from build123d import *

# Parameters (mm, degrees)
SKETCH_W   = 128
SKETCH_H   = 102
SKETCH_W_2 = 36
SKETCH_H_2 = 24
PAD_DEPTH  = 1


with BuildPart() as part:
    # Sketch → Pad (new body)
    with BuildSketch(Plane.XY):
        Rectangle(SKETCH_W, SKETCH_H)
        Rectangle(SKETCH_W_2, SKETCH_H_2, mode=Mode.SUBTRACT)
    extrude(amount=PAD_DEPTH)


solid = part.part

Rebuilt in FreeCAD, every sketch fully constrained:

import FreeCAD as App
import Part
import Sketcher

V = App.Vector
Q = App.Units.Quantity


def add_polygon(sketch, points):
    """Adds a closed chain of lines whose ends are joined by coincident constraints."""
    first, n = sketch.GeometryCount, len(points)
    for a, b in zip(points, points[1:] + points[:1]):
        sketch.addGeometry(Part.LineSegment(App.Vector(*a, 0), App.Vector(*b, 0)), False)
    for i in range(n):
        sketch.addConstraint(Sketcher.Constraint("Coincident", first + i, 2, first + (i + 1) % n, 1))

doc = App.newDocument("Part")
body = doc.addObject("PartDesign::Body", "Body")

# Sketch on XY plane
sketch1 = body.newObject("Sketcher::SketchObject", "Sketch")
sketch1.AttachmentSupport = (doc.getObject("XY_Plane"), [""])
sketch1.MapMode = "FlatFace"
add_polygon(sketch1, [(-64, 51), (-64, -51), (64, -51), (64, 51)])  # lines 0-3
add_polygon(sketch1, [(18, -12), (-18, -12), (-18, 12), (18, 12)])  # lines 4-7
sketch1.addConstraint(Sketcher.Constraint("Vertical", 0))
sketch1.addConstraint(Sketcher.Constraint("Horizontal", 1))
sketch1.addConstraint(Sketcher.Constraint("Vertical", 2))
sketch1.addConstraint(Sketcher.Constraint("Horizontal", 3))
sketch1.addConstraint(Sketcher.Constraint("Horizontal", 4))
sketch1.addConstraint(Sketcher.Constraint("Vertical", 5))
sketch1.addConstraint(Sketcher.Constraint("Horizontal", 6))
sketch1.addConstraint(Sketcher.Constraint("Vertical", 7))
sketch1.addConstraint(Sketcher.Constraint("Symmetric", 0, 2, 2, 2, -1, 1))
sketch1.addConstraint(Sketcher.Constraint("Symmetric", 4, 2, 6, 2, -1, 1))
sketch1.addConstraint(Sketcher.Constraint("DistanceX", 1, 1, 1, 2, Q("128 mm")))
sketch1.addConstraint(Sketcher.Constraint("DistanceX", 4, 2, 4, 1, Q("36 mm")))
sketch1.addConstraint(Sketcher.Constraint("DistanceY", 0, 2, 0, 1, Q("102 mm")))
sketch1.addConstraint(Sketcher.Constraint("DistanceY", 5, 1, 5, 2, Q("24 mm")))
pad1 = body.newObject("PartDesign::Pad", "Pad")
pad1.Profile = sketch1
pad1.Length = 1

doc.recompute()
